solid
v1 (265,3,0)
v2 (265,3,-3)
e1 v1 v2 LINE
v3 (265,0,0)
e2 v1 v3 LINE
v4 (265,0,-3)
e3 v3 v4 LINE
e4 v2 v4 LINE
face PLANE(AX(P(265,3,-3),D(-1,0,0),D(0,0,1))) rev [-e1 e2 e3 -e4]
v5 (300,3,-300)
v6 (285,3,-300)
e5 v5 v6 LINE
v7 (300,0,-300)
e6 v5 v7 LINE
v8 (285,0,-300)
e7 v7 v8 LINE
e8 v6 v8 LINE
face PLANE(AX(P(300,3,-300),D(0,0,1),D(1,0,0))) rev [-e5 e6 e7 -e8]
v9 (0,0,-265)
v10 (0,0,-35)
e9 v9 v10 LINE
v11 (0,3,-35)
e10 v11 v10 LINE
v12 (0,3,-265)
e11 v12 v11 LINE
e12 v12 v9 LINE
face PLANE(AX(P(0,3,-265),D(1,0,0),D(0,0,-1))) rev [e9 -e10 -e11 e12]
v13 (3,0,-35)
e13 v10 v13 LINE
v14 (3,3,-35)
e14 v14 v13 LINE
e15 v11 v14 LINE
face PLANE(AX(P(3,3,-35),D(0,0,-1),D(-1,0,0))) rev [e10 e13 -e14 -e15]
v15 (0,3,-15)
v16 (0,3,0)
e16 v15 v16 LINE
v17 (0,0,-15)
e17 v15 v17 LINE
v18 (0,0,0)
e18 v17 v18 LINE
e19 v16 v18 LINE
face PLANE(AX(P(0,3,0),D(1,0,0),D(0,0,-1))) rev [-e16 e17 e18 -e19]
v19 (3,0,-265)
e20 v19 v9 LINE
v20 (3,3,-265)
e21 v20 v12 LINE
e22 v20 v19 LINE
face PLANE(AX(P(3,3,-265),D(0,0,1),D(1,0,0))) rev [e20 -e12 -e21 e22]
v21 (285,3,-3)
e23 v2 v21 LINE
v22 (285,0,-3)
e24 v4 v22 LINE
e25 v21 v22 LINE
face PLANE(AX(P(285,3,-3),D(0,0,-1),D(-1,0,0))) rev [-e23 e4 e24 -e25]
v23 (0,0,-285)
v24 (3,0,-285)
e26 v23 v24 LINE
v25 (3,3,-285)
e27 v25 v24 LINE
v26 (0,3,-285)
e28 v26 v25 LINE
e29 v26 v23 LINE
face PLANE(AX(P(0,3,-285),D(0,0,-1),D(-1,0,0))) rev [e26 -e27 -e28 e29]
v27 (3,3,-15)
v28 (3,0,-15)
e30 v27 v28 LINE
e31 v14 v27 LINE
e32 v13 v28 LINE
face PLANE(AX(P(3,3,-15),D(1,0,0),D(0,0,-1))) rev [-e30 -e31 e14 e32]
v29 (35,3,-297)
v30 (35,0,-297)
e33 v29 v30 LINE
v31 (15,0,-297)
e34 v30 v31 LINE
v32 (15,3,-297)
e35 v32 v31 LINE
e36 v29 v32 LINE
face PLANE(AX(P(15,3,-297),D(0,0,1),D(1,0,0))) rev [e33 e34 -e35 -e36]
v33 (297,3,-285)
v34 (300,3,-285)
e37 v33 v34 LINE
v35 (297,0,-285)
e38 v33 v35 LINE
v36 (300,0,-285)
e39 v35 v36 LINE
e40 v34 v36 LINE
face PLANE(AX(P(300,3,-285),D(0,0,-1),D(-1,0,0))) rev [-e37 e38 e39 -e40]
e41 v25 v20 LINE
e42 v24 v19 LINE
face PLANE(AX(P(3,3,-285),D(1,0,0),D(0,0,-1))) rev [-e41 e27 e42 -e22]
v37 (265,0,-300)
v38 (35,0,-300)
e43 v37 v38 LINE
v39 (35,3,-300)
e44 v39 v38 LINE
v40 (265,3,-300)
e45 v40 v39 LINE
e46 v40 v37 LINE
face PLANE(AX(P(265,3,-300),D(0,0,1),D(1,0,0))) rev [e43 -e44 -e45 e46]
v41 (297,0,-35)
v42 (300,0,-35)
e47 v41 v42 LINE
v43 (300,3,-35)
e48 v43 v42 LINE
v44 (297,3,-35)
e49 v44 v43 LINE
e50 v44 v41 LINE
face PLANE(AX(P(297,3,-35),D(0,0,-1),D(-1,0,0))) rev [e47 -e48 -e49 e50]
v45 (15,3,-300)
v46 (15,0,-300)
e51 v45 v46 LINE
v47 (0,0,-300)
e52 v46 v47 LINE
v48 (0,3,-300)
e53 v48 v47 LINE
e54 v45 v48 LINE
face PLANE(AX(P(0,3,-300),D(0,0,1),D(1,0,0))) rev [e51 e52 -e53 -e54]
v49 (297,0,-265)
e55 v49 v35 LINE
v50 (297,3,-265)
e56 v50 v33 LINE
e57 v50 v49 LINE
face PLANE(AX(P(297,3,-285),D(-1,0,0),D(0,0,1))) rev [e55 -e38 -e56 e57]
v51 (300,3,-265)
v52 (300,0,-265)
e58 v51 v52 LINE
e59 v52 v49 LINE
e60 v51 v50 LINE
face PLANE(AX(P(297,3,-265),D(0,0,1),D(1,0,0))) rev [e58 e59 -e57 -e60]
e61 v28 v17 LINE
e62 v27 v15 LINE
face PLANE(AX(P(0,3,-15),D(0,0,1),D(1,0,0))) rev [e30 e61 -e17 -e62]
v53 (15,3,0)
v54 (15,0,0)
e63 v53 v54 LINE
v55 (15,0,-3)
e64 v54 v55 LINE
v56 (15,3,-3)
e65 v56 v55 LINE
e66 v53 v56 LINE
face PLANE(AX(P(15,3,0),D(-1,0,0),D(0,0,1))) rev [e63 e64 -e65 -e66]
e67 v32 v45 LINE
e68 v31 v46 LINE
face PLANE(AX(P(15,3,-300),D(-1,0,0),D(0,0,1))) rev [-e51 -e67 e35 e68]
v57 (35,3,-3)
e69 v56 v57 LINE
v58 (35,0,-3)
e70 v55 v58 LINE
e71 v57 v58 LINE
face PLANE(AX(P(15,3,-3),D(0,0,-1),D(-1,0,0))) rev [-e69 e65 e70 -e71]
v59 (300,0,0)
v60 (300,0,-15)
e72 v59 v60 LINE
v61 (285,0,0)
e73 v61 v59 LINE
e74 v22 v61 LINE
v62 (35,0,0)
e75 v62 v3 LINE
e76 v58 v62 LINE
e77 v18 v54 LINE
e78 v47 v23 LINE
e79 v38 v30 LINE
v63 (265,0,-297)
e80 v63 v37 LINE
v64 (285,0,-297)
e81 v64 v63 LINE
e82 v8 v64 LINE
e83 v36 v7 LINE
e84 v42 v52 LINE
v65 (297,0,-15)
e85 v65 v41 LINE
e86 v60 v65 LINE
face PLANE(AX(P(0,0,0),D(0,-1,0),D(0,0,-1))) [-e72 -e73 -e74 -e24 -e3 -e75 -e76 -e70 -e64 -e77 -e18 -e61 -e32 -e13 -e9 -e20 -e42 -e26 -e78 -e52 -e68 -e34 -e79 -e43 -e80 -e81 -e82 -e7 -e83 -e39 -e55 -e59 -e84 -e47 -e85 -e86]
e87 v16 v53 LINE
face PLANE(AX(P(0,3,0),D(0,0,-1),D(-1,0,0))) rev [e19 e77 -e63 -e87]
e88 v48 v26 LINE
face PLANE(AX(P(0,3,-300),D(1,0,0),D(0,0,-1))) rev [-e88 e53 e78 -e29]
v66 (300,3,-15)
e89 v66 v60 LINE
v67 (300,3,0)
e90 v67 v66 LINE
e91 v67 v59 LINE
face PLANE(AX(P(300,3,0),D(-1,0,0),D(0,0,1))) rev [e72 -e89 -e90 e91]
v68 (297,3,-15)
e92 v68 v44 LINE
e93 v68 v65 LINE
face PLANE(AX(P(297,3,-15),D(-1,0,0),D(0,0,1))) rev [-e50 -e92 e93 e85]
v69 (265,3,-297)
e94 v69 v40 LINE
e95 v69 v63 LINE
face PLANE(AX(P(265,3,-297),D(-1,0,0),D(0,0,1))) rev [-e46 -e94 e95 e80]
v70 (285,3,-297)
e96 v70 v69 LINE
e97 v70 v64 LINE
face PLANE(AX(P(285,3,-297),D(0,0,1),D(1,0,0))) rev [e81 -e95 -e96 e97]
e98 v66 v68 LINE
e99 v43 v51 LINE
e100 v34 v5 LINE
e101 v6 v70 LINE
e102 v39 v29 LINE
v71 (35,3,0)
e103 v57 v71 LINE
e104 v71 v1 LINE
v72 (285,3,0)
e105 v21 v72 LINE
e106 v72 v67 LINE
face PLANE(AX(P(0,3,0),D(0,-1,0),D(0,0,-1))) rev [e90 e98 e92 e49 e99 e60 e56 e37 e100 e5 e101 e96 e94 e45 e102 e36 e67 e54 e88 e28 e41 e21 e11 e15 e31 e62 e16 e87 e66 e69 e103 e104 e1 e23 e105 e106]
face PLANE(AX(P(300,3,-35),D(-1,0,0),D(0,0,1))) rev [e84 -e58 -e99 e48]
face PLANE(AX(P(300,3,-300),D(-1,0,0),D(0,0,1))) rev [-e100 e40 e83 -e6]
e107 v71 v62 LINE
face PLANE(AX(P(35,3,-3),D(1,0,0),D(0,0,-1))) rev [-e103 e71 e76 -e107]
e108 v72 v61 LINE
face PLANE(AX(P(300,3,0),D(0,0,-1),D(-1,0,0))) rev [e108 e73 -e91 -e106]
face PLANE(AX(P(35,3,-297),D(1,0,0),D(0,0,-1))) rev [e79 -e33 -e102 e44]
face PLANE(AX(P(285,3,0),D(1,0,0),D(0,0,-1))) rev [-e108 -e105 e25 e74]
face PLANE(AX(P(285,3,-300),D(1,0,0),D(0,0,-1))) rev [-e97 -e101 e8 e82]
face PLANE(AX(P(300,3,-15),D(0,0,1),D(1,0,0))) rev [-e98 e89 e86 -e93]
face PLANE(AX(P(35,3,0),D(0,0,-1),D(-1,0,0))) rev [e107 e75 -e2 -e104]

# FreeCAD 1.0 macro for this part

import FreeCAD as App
import Part
import Sketcher
from FreeCAD import Vector


def add_polygon(sketch, points):
    """Adds a closed chain of lines whose ends are joined by coincident constraints."""
    first, n = sketch.GeometryCount, len(points)
    for a, b in zip(points, points[1:] + points[:1]):
        sketch.addGeometry(Part.LineSegment(App.Vector(*a, 0), App.Vector(*b, 0)), False)
    for i in range(n):
        sketch.addConstraint(Sketcher.Constraint("Coincident", first + i, 2, first + (i + 1) % n, 1))

doc = App.newDocument("Part")
body = doc.addObject("PartDesign::Body", "Body")

sketch1 = body.newObject("Sketcher::SketchObject", "Sketch")
sketch1.AttachmentSupport = (doc.getObject("XZ_Plane"), [""])
sketch1.MapMode = "FlatFace"
add_polygon(sketch1, [(0, 0), (15, 0), (15, -3), (35, -3), (35, 0), (265, 0), (265, -3), (285, -3), (285, 0), (300, 0), (300, -15), (297, -15), (297, -35), (300, -35), (300, -265), (297, -265), (297, -285), (300, -285), (300, -300), (285, -300), (285, -297), (265, -297), (265, -300), (35, -300), (35, -297), (15, -297), (15, -300), (0, -300), (0, -285), (3, -285), (3, -265), (0, -265), (0, -35), (3, -35), (3, -15), (0, -15)])
sketch1.addConstraint([
    Sketcher.Constraint("Horizontal", 0),
    Sketcher.Constraint("Vertical", 1),
    Sketcher.Constraint("Horizontal", 2),
    Sketcher.Constraint("Vertical", 3),
    Sketcher.Constraint("Horizontal", 4),
    Sketcher.Constraint("Vertical", 5),
    Sketcher.Constraint("Horizontal", 6),
    Sketcher.Constraint("Vertical", 7),
    Sketcher.Constraint("Horizontal", 8),
    Sketcher.Constraint("Vertical", 9),
    Sketcher.Constraint("Horizontal", 10),
    Sketcher.Constraint("Vertical", 11),
    Sketcher.Constraint("Horizontal", 12),
    Sketcher.Constraint("Vertical", 13),
    Sketcher.Constraint("Horizontal", 14),
    Sketcher.Constraint("Vertical", 15),
    Sketcher.Constraint("Horizontal", 16),
    Sketcher.Constraint("Vertical", 17),
    Sketcher.Constraint("Horizontal", 18),
    Sketcher.Constraint("Vertical", 19),
    Sketcher.Constraint("Horizontal", 20),
    Sketcher.Constraint("Vertical", 21),
    Sketcher.Constraint("Horizontal", 22),
    Sketcher.Constraint("Vertical", 23),
    Sketcher.Constraint("Horizontal", 24),
    Sketcher.Constraint("Vertical", 25),
    Sketcher.Constraint("Horizontal", 26),
    Sketcher.Constraint("Vertical", 27),
    Sketcher.Constraint("Horizontal", 28),
    Sketcher.Constraint("Vertical", 29),
    Sketcher.Constraint("Horizontal", 30),
    Sketcher.Constraint("Vertical", 31),
    Sketcher.Constraint("Horizontal", 32),
    Sketcher.Constraint("Vertical", 33),
    Sketcher.Constraint("Horizontal", 34),
    Sketcher.Constraint("Vertical", 35),
    Sketcher.Constraint("Coincident", 35, 2, -1, 1),
    Sketcher.Constraint("PointOnObject", 3, 2, -1),
    Sketcher.Constraint("PointOnObject", 7, 2, -1),
    Sketcher.Constraint("PointOnObject", 26, 2, -2),
    Sketcher.Constraint("PointOnObject", 30, 2, -2),
    Sketcher.Constraint("Horizontal", 2, 2, 5, 2),
    Sketcher.Constraint("Horizontal", 18, 2, 21, 2),
    Sketcher.Constraint("Horizontal", 20, 2, 23, 2),
    Sketcher.Constraint("Horizontal", 22, 2, 25, 2),
    Sketcher.Constraint("Horizontal", 16, 2, 27, 2),
    Sketcher.Constraint("Horizontal", 14, 2, 29, 2),
    Sketcher.Constraint("Horizontal", 12, 2, 31, 2),
    Sketcher.Constraint("Horizontal", 10, 2, 33, 2),
    Sketcher.Constraint("Vertical", 9, 2, 12, 2),
    Sketcher.Constraint("Vertical", 11, 2, 14, 2),
    Sketcher.Constraint("Vertical", 13, 2, 16, 2),
    Sketcher.Constraint("Vertical", 7, 2, 18, 2),
    Sketcher.Constraint("Vertical", 5, 2, 20, 2),
    Sketcher.Constraint("Vertical", 3, 2, 22, 2),
    Sketcher.Constraint("Vertical", 1, 2, 24, 2),
    Sketcher.Constraint("Vertical", 29, 2, 32, 2),
    Sketcher.Constraint("Equal", 2, 6),
    Sketcher.Constraint("Equal", 0, 8),
    Sketcher.Constraint("Equal", 16, 28),
    Sketcher.Constraint("Equal", 34, 1),
    Sketcher.Constraint("Equal", 26, 9),
    Sketcher.Constraint("Equal", 24, 11),
    Sketcher.Constraint("Equal", 22, 13),
    Sketcher.Constraint("Equal", 11, 15),
    Sketcher.Constraint("Equal", 9, 17),
    Sketcher.Constraint("Equal", 7, 19),
    Sketcher.Constraint("DistanceX", 0, 1, 0, 2, 15.0),
    Sketcher.Constraint("DistanceX", 2, 1, 2, 2, 20.0),
    Sketcher.Constraint("DistanceX", 4, 1, 4, 2, 230.0),
    Sketcher.Constraint("DistanceX", 10, 2, 10, 1, 3.0),
])
pad1 = body.newObject("PartDesign::Pad", "Pad")
pad1.Profile = sketch1
pad1.Length = 3
pad1.Reversed = True

doc.recompute()
